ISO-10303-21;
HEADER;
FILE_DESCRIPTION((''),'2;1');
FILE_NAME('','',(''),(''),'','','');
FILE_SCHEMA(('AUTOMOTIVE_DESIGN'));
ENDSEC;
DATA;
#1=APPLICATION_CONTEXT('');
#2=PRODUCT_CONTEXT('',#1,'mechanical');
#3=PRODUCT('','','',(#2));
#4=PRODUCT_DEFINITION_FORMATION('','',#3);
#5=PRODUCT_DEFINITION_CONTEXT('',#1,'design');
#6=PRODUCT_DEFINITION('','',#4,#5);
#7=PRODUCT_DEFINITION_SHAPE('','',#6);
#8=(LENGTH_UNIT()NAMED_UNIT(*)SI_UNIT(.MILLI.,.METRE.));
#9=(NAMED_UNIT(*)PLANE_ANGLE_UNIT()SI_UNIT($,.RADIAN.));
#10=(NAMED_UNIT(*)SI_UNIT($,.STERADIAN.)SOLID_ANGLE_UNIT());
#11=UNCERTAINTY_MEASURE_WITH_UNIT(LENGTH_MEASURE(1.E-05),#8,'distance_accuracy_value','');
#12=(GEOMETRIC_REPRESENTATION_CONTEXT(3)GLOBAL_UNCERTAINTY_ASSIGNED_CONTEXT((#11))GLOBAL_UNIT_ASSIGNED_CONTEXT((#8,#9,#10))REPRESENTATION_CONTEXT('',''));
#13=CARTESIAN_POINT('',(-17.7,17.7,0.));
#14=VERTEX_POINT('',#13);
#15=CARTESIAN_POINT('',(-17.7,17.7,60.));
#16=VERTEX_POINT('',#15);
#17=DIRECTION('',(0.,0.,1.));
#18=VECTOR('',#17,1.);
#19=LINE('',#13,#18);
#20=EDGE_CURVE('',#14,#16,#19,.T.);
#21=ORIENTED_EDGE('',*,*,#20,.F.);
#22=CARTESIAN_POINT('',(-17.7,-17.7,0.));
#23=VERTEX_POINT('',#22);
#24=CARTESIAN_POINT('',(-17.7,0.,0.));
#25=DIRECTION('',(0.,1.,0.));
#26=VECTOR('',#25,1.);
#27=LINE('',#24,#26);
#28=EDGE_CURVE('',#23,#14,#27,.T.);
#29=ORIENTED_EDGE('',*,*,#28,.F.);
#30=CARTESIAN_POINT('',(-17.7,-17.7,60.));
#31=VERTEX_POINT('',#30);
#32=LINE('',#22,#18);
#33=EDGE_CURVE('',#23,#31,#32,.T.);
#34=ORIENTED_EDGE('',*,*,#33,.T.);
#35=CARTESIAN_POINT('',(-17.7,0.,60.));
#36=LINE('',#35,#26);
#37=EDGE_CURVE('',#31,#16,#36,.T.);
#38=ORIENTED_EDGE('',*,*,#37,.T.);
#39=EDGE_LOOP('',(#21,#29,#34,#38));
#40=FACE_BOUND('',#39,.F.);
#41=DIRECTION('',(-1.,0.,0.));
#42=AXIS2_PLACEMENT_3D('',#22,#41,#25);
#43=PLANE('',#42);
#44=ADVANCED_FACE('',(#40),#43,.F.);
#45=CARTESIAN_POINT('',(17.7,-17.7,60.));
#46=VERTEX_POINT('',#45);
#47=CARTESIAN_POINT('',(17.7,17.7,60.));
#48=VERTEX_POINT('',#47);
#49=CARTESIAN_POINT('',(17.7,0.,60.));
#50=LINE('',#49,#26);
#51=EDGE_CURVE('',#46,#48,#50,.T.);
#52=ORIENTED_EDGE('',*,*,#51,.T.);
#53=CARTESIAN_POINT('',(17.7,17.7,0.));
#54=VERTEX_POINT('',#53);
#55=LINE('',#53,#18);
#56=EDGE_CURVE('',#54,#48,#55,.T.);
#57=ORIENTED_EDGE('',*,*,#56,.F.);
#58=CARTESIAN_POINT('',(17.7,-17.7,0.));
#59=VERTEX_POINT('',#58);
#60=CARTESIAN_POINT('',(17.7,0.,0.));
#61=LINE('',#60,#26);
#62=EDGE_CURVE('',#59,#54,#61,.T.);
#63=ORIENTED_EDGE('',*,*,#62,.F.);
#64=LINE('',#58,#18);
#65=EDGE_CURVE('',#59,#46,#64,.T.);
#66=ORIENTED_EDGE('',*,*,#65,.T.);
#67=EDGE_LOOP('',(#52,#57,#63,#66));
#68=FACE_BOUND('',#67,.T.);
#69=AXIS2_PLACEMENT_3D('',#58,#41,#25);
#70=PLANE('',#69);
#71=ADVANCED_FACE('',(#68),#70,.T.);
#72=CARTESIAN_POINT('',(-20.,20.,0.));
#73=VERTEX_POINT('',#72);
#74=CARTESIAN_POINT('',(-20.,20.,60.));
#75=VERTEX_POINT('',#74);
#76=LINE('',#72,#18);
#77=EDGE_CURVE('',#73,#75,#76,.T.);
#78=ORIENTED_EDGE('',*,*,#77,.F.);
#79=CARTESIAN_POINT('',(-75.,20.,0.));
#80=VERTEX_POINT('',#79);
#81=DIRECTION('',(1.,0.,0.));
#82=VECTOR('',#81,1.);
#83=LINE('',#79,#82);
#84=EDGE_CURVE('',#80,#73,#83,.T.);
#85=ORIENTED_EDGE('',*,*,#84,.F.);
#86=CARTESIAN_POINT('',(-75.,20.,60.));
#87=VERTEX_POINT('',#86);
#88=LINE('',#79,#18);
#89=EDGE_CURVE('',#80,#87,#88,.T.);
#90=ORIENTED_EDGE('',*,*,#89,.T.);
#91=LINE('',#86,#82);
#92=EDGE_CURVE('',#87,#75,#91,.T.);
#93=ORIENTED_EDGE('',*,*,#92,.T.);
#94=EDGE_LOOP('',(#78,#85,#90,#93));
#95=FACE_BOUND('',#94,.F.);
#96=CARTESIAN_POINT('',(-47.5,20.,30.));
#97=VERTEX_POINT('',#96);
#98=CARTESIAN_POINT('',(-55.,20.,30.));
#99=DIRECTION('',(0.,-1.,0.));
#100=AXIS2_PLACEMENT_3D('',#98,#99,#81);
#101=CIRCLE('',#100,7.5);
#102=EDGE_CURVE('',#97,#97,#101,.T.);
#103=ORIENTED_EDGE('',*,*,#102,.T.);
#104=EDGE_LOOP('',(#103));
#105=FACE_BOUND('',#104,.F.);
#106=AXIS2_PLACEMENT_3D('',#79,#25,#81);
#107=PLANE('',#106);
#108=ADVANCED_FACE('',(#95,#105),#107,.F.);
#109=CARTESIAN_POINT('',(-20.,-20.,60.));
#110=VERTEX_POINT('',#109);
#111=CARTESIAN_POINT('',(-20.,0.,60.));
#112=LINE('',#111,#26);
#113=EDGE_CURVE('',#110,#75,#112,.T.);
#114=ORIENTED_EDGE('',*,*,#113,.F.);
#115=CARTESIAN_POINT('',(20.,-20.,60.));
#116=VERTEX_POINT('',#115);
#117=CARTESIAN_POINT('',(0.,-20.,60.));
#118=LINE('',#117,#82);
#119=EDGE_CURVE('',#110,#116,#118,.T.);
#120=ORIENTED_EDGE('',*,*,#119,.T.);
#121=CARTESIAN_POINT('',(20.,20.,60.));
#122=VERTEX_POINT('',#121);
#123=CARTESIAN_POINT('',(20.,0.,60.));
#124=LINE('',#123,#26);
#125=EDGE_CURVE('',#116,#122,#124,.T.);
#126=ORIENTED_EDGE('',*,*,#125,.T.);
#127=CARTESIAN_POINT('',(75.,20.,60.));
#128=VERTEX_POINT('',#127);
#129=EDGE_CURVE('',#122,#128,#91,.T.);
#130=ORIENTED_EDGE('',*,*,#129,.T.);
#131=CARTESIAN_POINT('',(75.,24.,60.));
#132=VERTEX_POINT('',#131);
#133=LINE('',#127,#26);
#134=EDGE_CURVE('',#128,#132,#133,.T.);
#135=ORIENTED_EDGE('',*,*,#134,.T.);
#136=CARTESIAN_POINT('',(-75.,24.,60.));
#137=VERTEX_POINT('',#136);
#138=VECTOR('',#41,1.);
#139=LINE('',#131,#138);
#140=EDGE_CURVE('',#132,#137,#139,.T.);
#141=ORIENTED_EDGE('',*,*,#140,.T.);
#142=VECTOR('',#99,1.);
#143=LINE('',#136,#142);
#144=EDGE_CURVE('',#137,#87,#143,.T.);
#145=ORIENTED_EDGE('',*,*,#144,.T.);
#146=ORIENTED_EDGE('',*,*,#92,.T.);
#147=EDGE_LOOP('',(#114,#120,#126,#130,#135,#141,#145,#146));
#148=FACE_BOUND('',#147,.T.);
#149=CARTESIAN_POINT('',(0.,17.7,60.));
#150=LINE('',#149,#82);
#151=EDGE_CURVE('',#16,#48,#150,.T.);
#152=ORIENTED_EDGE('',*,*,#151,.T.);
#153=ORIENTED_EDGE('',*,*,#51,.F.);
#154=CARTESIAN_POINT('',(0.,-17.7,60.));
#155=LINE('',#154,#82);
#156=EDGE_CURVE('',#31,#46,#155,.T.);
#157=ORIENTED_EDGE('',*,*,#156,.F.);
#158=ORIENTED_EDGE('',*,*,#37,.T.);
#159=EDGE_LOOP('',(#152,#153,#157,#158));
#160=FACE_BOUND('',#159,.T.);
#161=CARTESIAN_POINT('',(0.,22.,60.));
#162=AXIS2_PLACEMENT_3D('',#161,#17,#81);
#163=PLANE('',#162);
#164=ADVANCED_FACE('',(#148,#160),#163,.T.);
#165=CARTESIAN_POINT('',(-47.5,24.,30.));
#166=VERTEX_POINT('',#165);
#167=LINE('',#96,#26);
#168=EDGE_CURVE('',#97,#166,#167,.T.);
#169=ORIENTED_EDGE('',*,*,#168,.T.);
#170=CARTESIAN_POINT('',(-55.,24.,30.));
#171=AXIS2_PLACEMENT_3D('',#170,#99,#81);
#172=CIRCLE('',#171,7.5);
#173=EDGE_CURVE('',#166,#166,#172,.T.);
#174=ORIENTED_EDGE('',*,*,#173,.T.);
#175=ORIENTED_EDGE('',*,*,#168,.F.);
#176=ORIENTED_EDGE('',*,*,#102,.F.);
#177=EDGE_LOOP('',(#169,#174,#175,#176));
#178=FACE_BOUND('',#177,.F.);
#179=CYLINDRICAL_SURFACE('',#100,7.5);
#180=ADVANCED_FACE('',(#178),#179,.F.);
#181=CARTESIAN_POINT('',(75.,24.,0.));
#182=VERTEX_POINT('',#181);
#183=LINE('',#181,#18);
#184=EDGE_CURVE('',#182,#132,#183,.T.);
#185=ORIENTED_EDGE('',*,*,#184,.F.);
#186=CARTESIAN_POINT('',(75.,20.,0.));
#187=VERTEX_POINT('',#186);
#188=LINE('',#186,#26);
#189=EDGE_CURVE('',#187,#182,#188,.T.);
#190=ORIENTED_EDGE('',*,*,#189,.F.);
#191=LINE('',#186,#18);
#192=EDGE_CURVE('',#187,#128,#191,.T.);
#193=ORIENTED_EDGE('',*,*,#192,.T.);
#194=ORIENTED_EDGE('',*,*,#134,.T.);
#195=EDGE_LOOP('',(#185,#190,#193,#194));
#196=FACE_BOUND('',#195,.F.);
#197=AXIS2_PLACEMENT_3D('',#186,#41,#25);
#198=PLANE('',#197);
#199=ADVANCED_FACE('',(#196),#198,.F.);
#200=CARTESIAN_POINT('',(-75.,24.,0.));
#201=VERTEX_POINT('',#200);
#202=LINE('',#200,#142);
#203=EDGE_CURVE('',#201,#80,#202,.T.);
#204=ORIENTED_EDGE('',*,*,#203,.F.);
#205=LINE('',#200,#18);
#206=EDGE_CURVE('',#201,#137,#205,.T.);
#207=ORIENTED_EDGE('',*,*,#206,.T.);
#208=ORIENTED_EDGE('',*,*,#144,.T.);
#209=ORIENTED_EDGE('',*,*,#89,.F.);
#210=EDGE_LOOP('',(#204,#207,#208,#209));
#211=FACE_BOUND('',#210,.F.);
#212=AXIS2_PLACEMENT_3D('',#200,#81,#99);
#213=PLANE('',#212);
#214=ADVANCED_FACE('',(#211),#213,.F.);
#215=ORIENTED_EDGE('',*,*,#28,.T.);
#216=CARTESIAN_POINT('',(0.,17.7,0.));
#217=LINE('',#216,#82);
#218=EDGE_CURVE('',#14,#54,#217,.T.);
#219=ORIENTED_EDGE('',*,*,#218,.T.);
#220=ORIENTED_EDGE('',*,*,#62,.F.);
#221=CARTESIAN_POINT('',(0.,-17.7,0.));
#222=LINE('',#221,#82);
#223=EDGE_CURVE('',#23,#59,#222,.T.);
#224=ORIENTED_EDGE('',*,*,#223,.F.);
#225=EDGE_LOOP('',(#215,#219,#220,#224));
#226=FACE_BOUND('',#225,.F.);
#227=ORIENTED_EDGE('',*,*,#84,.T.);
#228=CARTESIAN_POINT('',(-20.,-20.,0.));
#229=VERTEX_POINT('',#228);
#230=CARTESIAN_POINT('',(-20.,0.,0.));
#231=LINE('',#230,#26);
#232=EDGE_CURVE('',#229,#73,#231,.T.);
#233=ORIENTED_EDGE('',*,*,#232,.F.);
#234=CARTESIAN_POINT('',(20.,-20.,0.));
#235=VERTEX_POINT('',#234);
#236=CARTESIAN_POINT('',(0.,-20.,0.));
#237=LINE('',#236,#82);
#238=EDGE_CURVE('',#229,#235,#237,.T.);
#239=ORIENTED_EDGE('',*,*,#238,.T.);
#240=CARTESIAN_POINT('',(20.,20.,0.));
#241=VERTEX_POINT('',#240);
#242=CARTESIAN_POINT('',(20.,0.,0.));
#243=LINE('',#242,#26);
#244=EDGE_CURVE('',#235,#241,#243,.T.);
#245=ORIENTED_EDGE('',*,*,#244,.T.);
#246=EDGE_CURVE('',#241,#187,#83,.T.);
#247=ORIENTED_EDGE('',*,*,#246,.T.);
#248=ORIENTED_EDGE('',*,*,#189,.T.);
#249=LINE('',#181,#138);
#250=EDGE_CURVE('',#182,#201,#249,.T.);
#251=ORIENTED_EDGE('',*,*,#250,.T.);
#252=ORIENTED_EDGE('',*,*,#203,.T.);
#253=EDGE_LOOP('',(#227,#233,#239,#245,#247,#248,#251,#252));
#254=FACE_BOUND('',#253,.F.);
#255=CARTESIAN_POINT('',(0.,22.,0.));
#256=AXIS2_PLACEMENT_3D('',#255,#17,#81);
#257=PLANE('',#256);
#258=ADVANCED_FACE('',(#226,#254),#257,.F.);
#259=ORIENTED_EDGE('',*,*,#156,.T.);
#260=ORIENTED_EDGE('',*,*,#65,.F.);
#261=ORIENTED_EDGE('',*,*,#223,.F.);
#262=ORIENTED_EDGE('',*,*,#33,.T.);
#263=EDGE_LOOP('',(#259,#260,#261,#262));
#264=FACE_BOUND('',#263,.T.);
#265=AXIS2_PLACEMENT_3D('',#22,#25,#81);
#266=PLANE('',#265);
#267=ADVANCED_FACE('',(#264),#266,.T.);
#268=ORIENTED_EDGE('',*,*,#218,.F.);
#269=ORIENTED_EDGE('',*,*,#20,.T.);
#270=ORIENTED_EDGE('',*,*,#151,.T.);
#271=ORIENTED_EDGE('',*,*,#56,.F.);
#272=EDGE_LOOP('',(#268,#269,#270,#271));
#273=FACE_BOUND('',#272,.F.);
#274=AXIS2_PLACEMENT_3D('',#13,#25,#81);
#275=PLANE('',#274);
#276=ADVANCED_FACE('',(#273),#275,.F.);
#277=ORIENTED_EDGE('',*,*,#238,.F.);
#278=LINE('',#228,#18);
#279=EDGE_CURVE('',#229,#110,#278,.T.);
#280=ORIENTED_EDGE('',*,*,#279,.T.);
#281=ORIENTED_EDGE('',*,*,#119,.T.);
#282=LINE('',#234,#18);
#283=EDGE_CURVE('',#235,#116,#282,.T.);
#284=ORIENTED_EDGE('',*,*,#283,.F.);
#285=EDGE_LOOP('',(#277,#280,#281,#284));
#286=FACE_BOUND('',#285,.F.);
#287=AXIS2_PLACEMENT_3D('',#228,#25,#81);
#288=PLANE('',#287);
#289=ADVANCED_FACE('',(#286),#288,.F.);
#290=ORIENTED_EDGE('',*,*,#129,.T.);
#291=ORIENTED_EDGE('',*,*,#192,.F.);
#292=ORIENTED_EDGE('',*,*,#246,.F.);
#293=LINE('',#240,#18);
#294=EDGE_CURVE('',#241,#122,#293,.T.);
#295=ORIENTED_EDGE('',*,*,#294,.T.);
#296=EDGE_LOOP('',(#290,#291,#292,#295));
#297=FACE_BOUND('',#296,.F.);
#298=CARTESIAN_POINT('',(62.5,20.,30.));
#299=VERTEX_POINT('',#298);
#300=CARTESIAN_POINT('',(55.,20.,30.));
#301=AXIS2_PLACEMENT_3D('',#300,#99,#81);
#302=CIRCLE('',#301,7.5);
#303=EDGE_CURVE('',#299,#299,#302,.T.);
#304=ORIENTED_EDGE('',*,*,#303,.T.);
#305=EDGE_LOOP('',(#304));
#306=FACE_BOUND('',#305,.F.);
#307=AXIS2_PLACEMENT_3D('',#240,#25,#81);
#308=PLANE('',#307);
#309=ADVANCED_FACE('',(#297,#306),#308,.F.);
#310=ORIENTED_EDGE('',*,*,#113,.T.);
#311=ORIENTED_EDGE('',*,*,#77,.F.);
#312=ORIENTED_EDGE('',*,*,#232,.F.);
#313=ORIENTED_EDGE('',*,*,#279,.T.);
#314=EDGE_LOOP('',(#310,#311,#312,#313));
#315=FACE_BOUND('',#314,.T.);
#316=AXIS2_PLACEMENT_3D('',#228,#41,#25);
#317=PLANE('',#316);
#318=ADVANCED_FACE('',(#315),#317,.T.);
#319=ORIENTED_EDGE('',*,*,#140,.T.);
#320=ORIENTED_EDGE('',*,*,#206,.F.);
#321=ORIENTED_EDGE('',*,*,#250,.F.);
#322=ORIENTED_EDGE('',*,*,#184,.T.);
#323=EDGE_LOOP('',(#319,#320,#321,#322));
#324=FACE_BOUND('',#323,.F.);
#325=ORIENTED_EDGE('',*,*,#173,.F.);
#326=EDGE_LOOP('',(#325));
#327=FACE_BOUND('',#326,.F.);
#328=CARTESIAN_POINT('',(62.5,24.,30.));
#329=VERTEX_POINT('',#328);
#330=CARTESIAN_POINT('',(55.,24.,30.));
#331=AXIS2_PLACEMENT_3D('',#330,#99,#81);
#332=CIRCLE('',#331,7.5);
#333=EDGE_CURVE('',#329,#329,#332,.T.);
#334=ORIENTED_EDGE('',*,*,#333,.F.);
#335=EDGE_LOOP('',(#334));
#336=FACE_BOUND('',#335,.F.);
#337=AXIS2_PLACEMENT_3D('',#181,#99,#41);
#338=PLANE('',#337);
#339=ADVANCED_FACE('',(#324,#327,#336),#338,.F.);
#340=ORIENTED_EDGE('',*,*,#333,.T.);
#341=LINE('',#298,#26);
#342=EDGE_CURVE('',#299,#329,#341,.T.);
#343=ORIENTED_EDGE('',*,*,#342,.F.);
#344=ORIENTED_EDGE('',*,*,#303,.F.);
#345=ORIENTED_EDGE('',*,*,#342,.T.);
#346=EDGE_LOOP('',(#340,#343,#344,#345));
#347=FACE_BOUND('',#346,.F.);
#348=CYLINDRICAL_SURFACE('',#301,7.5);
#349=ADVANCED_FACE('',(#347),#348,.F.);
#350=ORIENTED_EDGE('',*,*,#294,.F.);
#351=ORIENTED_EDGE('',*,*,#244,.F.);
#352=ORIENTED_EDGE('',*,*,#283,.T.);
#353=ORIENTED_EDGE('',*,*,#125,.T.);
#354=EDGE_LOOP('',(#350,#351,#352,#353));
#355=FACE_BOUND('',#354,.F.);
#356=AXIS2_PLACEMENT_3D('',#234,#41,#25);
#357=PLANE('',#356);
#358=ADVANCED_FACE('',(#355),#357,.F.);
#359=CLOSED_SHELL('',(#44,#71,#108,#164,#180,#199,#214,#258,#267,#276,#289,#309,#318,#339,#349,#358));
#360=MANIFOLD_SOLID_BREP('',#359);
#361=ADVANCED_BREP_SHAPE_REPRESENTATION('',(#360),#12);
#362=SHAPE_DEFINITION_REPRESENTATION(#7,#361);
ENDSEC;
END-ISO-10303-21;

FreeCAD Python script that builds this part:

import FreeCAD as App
import Part
import Sketcher

V = App.Vector

doc = App.newDocument("Part")
body = doc.addObject("PartDesign::Body", "Body")

# Sketch on XY plane
sketch1 = body.newObject("Sketcher::SketchObject", "Sketch")
sketch1.AttachmentSupport = (doc.getObject("XY_Plane"), [""])
sketch1.MapMode = "FlatFace"
sketch1.addGeometry(Part.LineSegment(V(75, 20, 0), V(75, 24, 0)), False)
sketch1.addGeometry(Part.LineSegment(V(75, 24, 0), V(-75, 24, 0)), False)
sketch1.addGeometry(Part.LineSegment(V(-75, 24, 0), V(-75, 20, 0)), False)
sketch1.addGeometry(Part.LineSegment(V(-75, 20, 0), V(-20, 20, 0)), False)
sketch1.addGeometry(Part.LineSegment(V(-20, 20, 0), V(-20, -20, 0)), False)
sketch1.addGeometry(Part.LineSegment(V(-20, -20, 0), V(20, -20, 0)), False)
sketch1.addGeometry(Part.LineSegment(V(20, -20, 0), V(20, 20, 0)), False)
sketch1.addGeometry(Part.LineSegment(V(20, 20, 0), V(75, 20, 0)), False)
sketch1.addGeometry(Part.LineSegment(V(17.7, -17.7, 0), V(-17.7, -17.7, 0)), False)
sketch1.addGeometry(Part.LineSegment(V(-17.7, -17.7, 0), V(-17.7, 17.7, 0)), False)
sketch1.addGeometry(Part.LineSegment(V(-17.7, 17.7, 0), V(17.7, 17.7, 0)), False)
sketch1.addGeometry(Part.LineSegment(V(17.7, 17.7, 0), V(17.7, -17.7, 0)), False)
sketch1.addConstraint(Sketcher.Constraint("Coincident", 0, 2, 1, 1))
sketch1.addConstraint(Sketcher.Constraint("Coincident", 1, 2, 2, 1))
sketch1.addConstraint(Sketcher.Constraint("Coincident", 2, 2, 3, 1))
sketch1.addConstraint(Sketcher.Constraint("Coincident", 3, 2, 4, 1))
sketch1.addConstraint(Sketcher.Constraint("Coincident", 4, 2, 5, 1))
sketch1.addConstraint(Sketcher.Constraint("Coincident", 5, 2, 6, 1))
sketch1.addConstraint(Sketcher.Constraint("Coincident", 6, 2, 7, 1))
sketch1.addConstraint(Sketcher.Constraint("Coincident", 7, 2, 0, 1))
sketch1.addConstraint(Sketcher.Constraint("Coincident", 8, 2, 9, 1))
sketch1.addConstraint(Sketcher.Constraint("Coincident", 9, 2, 10, 1))
sketch1.addConstraint(Sketcher.Constraint("Coincident", 10, 2, 11, 1))
sketch1.addConstraint(Sketcher.Constraint("Coincident", 11, 2, 8, 1))
sketch1.addConstraint(Sketcher.Constraint("Vertical", 0))
sketch1.addConstraint(Sketcher.Constraint("Horizontal", 1))
sketch1.addConstraint(Sketcher.Constraint("Vertical", 2))
sketch1.addConstraint(Sketcher.Constraint("Horizontal", 3))
sketch1.addConstraint(Sketcher.Constraint("Vertical", 4))
sketch1.addConstraint(Sketcher.Constraint("Horizontal", 5))
sketch1.addConstraint(Sketcher.Constraint("Vertical", 6))
sketch1.addConstraint(Sketcher.Constraint("Horizontal", 7))
sketch1.addConstraint(Sketcher.Constraint("Horizontal", 8))
sketch1.addConstraint(Sketcher.Constraint("Vertical", 9))
sketch1.addConstraint(Sketcher.Constraint("Horizontal", 10))
sketch1.addConstraint(Sketcher.Constraint("Vertical", 11))
sketch1.addConstraint(Sketcher.Constraint("Symmetric", 3, 2, 5, 2, -1, 1))
sketch1.addConstraint(Sketcher.Constraint("Symmetric", 8, 2, 10, 2, -1, 1))
sketch1.addConstraint(Sketcher.Constraint("Symmetric", 2, 2, 7, 2, -2))
sketch1.addConstraint(Sketcher.Constraint("Equal", 5, 4))
sketch1.addConstraint(Sketcher.Constraint("Equal", 10, 9))
sketch1.addConstraint(Sketcher.Constraint("DistanceX", 1, 2, 1, 1, 150.0))
sketch1.addConstraint(Sketcher.Constraint("DistanceX", 3, 1, 3, 2, 55.0))
sketch1.addConstraint(Sketcher.Constraint("DistanceY", 0, 1, 0, 2, 4.0))
sketch1.addConstraint(Sketcher.Constraint("DistanceX", 8, 2, 8, 1, 35.4))
pad1 = body.newObject("PartDesign::Pad", "Pad")
pad1.Profile = sketch1
pad1.Length = 60

# Sketch on XZ plane
sketch2 = body.newObject("Sketcher::SketchObject", "Sketch001")
sketch2.AttachmentSupport = (doc.getObject("XZ_Plane"), [""])
sketch2.MapMode = "FlatFace"
sketch2.AttachmentOffset = App.Placement(V(0, 0, -20), App.Rotation())
sketch2.addGeometry(Part.Circle(V(-55, 30, 0), V(0, 0, 1), 7.5), False)
sketch2.addGeometry(Part.Circle(V(55, 30, 0), V(0, 0, 1), 7.5), False)
sketch2.addConstraint(Sketcher.Constraint("Equal", 0, 1))
sketch2.addConstraint(Sketcher.Constraint("Symmetric", 0, 3, 1, 3, -2))
sketch2.addConstraint(Sketcher.Constraint("Diameter", 0, 15.0))
sketch2.addConstraint(Sketcher.Constraint("DistanceX", 0, 3, -1, 1, 55.0))
sketch2.addConstraint(Sketcher.Constraint("DistanceY", -1, 1, 0, 3, 30.0))
pocket1 = body.newObject("PartDesign::Pocket", "Pocket")
pocket1.Profile = sketch2
pocket1.Type = "ThroughAll"

doc.recompute()
